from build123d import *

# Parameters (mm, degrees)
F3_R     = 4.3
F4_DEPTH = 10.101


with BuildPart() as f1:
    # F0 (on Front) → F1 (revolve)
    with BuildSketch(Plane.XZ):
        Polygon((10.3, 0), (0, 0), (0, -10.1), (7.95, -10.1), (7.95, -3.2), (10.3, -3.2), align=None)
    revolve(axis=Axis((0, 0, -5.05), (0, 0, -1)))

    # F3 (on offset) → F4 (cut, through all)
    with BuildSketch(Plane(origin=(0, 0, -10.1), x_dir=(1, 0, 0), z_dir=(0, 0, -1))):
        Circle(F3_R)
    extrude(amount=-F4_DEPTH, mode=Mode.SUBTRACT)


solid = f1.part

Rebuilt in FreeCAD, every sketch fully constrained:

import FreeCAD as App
import Part
import Sketcher

V = App.Vector
Q = App.Units.Quantity

doc = App.newDocument("Part")
params = doc.addObject("Spreadsheet::Sheet", "Params")
for row, (alias, value) in enumerate([
    ("sketch1_width", "10.3 mm"),
    ("sketch1_height", "10.1 mm"),
    ("sketch1_height2", "6.9 mm"),
    ("sketch1_width2", "7.95 mm"),
    ("revolution_angle", "360 deg"),
    ("sketch2_diameter", "8.6 mm"),
], start=1):
    params.set(f"A{row}", alias)
    params.set(f"B{row}", "=" + value)
    params.setAlias(f"B{row}", alias)

body = doc.addObject("PartDesign::Body", "Body")

sketch1 = body.newObject("Sketcher::SketchObject", "Sketch")
sketch1.AttachmentSupport = (doc.getObject("XZ_Plane"), [""])
sketch1.MapMode = "FlatFace"
sketch1.addGeometry(Part.LineSegment(V(10.3, 0, 0), V(0, 0, 0)), False)
sketch1.addGeometry(Part.LineSegment(V(0, 0, 0), V(0, -10.1, 0)), False)
sketch1.addGeometry(Part.LineSegment(V(0, -10.1, 0), V(7.95, -10.1, 0)), False)
sketch1.addGeometry(Part.LineSegment(V(7.95, -10.1, 0), V(7.95, -3.2, 0)), False)
sketch1.addGeometry(Part.LineSegment(V(7.95, -3.2, 0), V(10.3, -3.2, 0)), False)
sketch1.addGeometry(Part.LineSegment(V(10.3, -3.2, 0), V(10.3, 0, 0)), False)
sketch1.addConstraint(Sketcher.Constraint("Coincident", 0, 2, 1, 1))
sketch1.addConstraint(Sketcher.Constraint("Coincident", 1, 2, 2, 1))
sketch1.addConstraint(Sketcher.Constraint("Coincident", 2, 2, 3, 1))
sketch1.addConstraint(Sketcher.Constraint("Coincident", 3, 2, 4, 1))
sketch1.addConstraint(Sketcher.Constraint("Coincident", 4, 2, 5, 1))
sketch1.addConstraint(Sketcher.Constraint("Coincident", 5, 2, 0, 1))
sketch1.addConstraint(Sketcher.Constraint("Horizontal", 0))
sketch1.addConstraint(Sketcher.Constraint("Vertical", 1))
sketch1.addConstraint(Sketcher.Constraint("Horizontal", 2))
sketch1.addConstraint(Sketcher.Constraint("Vertical", 3))
sketch1.addConstraint(Sketcher.Constraint("Horizontal", 4))
sketch1.addConstraint(Sketcher.Constraint("Vertical", 5))
sketch1.addConstraint(Sketcher.Constraint("Coincident", 0, 2, -1, 1))
sketch1.addConstraint(Sketcher.Constraint("DistanceX", 0, 2, 0, 1, Q("10.3 mm")))
sketch1.addConstraint(Sketcher.Constraint("DistanceY", 1, 2, 1, 1, Q("10.1 mm")))
sketch1.addConstraint(Sketcher.Constraint("DistanceY", 3, 1, 3, 2, Q("6.9 mm")))
sketch1.addConstraint(Sketcher.Constraint("DistanceX", 2, 1, 2, 2, Q("7.95 mm")))
sketch1.setExpression("Constraints[13]", "Params.sketch1_width")
sketch1.setExpression("Constraints[14]", "Params.sketch1_height")
sketch1.setExpression("Constraints[15]", "Params.sketch1_height2")
sketch1.setExpression("Constraints[16]", "Params.sketch1_width2")
revolution = body.newObject("PartDesign::Revolution", "Revolution")
revolution.Profile = sketch1
revolution.ReferenceAxis = (sketch1, ["V_Axis"])
revolution.setExpression("Angle", "Params.revolution_angle")

sketch2 = body.newObject("Sketcher::SketchObject", "Sketch001")
sketch2.AttachmentSupport = (doc.getObject("XY_Plane"), [""])
sketch2.MapMode = "FlatFace"
sketch2.AttachmentOffset = App.Placement(V(0, 0, -10.1), App.Rotation())
sketch2.addGeometry(Part.Circle(V(0, 0, 0), V(0, 0, 1), 4.3), False)
sketch2.addConstraint(Sketcher.Constraint("Coincident", 0, 3, -1, 1))
sketch2.addConstraint(Sketcher.Constraint("Diameter", 0, Q("8.6 mm")))
sketch2.setExpression("Constraints[1]", "Params.sketch2_diameter")
pocket1 = body.newObject("PartDesign::Pocket", "Pocket")
pocket1.Profile = sketch2
pocket1.Type = "ThroughAll"
pocket1.Reversed = True

doc.recompute()
